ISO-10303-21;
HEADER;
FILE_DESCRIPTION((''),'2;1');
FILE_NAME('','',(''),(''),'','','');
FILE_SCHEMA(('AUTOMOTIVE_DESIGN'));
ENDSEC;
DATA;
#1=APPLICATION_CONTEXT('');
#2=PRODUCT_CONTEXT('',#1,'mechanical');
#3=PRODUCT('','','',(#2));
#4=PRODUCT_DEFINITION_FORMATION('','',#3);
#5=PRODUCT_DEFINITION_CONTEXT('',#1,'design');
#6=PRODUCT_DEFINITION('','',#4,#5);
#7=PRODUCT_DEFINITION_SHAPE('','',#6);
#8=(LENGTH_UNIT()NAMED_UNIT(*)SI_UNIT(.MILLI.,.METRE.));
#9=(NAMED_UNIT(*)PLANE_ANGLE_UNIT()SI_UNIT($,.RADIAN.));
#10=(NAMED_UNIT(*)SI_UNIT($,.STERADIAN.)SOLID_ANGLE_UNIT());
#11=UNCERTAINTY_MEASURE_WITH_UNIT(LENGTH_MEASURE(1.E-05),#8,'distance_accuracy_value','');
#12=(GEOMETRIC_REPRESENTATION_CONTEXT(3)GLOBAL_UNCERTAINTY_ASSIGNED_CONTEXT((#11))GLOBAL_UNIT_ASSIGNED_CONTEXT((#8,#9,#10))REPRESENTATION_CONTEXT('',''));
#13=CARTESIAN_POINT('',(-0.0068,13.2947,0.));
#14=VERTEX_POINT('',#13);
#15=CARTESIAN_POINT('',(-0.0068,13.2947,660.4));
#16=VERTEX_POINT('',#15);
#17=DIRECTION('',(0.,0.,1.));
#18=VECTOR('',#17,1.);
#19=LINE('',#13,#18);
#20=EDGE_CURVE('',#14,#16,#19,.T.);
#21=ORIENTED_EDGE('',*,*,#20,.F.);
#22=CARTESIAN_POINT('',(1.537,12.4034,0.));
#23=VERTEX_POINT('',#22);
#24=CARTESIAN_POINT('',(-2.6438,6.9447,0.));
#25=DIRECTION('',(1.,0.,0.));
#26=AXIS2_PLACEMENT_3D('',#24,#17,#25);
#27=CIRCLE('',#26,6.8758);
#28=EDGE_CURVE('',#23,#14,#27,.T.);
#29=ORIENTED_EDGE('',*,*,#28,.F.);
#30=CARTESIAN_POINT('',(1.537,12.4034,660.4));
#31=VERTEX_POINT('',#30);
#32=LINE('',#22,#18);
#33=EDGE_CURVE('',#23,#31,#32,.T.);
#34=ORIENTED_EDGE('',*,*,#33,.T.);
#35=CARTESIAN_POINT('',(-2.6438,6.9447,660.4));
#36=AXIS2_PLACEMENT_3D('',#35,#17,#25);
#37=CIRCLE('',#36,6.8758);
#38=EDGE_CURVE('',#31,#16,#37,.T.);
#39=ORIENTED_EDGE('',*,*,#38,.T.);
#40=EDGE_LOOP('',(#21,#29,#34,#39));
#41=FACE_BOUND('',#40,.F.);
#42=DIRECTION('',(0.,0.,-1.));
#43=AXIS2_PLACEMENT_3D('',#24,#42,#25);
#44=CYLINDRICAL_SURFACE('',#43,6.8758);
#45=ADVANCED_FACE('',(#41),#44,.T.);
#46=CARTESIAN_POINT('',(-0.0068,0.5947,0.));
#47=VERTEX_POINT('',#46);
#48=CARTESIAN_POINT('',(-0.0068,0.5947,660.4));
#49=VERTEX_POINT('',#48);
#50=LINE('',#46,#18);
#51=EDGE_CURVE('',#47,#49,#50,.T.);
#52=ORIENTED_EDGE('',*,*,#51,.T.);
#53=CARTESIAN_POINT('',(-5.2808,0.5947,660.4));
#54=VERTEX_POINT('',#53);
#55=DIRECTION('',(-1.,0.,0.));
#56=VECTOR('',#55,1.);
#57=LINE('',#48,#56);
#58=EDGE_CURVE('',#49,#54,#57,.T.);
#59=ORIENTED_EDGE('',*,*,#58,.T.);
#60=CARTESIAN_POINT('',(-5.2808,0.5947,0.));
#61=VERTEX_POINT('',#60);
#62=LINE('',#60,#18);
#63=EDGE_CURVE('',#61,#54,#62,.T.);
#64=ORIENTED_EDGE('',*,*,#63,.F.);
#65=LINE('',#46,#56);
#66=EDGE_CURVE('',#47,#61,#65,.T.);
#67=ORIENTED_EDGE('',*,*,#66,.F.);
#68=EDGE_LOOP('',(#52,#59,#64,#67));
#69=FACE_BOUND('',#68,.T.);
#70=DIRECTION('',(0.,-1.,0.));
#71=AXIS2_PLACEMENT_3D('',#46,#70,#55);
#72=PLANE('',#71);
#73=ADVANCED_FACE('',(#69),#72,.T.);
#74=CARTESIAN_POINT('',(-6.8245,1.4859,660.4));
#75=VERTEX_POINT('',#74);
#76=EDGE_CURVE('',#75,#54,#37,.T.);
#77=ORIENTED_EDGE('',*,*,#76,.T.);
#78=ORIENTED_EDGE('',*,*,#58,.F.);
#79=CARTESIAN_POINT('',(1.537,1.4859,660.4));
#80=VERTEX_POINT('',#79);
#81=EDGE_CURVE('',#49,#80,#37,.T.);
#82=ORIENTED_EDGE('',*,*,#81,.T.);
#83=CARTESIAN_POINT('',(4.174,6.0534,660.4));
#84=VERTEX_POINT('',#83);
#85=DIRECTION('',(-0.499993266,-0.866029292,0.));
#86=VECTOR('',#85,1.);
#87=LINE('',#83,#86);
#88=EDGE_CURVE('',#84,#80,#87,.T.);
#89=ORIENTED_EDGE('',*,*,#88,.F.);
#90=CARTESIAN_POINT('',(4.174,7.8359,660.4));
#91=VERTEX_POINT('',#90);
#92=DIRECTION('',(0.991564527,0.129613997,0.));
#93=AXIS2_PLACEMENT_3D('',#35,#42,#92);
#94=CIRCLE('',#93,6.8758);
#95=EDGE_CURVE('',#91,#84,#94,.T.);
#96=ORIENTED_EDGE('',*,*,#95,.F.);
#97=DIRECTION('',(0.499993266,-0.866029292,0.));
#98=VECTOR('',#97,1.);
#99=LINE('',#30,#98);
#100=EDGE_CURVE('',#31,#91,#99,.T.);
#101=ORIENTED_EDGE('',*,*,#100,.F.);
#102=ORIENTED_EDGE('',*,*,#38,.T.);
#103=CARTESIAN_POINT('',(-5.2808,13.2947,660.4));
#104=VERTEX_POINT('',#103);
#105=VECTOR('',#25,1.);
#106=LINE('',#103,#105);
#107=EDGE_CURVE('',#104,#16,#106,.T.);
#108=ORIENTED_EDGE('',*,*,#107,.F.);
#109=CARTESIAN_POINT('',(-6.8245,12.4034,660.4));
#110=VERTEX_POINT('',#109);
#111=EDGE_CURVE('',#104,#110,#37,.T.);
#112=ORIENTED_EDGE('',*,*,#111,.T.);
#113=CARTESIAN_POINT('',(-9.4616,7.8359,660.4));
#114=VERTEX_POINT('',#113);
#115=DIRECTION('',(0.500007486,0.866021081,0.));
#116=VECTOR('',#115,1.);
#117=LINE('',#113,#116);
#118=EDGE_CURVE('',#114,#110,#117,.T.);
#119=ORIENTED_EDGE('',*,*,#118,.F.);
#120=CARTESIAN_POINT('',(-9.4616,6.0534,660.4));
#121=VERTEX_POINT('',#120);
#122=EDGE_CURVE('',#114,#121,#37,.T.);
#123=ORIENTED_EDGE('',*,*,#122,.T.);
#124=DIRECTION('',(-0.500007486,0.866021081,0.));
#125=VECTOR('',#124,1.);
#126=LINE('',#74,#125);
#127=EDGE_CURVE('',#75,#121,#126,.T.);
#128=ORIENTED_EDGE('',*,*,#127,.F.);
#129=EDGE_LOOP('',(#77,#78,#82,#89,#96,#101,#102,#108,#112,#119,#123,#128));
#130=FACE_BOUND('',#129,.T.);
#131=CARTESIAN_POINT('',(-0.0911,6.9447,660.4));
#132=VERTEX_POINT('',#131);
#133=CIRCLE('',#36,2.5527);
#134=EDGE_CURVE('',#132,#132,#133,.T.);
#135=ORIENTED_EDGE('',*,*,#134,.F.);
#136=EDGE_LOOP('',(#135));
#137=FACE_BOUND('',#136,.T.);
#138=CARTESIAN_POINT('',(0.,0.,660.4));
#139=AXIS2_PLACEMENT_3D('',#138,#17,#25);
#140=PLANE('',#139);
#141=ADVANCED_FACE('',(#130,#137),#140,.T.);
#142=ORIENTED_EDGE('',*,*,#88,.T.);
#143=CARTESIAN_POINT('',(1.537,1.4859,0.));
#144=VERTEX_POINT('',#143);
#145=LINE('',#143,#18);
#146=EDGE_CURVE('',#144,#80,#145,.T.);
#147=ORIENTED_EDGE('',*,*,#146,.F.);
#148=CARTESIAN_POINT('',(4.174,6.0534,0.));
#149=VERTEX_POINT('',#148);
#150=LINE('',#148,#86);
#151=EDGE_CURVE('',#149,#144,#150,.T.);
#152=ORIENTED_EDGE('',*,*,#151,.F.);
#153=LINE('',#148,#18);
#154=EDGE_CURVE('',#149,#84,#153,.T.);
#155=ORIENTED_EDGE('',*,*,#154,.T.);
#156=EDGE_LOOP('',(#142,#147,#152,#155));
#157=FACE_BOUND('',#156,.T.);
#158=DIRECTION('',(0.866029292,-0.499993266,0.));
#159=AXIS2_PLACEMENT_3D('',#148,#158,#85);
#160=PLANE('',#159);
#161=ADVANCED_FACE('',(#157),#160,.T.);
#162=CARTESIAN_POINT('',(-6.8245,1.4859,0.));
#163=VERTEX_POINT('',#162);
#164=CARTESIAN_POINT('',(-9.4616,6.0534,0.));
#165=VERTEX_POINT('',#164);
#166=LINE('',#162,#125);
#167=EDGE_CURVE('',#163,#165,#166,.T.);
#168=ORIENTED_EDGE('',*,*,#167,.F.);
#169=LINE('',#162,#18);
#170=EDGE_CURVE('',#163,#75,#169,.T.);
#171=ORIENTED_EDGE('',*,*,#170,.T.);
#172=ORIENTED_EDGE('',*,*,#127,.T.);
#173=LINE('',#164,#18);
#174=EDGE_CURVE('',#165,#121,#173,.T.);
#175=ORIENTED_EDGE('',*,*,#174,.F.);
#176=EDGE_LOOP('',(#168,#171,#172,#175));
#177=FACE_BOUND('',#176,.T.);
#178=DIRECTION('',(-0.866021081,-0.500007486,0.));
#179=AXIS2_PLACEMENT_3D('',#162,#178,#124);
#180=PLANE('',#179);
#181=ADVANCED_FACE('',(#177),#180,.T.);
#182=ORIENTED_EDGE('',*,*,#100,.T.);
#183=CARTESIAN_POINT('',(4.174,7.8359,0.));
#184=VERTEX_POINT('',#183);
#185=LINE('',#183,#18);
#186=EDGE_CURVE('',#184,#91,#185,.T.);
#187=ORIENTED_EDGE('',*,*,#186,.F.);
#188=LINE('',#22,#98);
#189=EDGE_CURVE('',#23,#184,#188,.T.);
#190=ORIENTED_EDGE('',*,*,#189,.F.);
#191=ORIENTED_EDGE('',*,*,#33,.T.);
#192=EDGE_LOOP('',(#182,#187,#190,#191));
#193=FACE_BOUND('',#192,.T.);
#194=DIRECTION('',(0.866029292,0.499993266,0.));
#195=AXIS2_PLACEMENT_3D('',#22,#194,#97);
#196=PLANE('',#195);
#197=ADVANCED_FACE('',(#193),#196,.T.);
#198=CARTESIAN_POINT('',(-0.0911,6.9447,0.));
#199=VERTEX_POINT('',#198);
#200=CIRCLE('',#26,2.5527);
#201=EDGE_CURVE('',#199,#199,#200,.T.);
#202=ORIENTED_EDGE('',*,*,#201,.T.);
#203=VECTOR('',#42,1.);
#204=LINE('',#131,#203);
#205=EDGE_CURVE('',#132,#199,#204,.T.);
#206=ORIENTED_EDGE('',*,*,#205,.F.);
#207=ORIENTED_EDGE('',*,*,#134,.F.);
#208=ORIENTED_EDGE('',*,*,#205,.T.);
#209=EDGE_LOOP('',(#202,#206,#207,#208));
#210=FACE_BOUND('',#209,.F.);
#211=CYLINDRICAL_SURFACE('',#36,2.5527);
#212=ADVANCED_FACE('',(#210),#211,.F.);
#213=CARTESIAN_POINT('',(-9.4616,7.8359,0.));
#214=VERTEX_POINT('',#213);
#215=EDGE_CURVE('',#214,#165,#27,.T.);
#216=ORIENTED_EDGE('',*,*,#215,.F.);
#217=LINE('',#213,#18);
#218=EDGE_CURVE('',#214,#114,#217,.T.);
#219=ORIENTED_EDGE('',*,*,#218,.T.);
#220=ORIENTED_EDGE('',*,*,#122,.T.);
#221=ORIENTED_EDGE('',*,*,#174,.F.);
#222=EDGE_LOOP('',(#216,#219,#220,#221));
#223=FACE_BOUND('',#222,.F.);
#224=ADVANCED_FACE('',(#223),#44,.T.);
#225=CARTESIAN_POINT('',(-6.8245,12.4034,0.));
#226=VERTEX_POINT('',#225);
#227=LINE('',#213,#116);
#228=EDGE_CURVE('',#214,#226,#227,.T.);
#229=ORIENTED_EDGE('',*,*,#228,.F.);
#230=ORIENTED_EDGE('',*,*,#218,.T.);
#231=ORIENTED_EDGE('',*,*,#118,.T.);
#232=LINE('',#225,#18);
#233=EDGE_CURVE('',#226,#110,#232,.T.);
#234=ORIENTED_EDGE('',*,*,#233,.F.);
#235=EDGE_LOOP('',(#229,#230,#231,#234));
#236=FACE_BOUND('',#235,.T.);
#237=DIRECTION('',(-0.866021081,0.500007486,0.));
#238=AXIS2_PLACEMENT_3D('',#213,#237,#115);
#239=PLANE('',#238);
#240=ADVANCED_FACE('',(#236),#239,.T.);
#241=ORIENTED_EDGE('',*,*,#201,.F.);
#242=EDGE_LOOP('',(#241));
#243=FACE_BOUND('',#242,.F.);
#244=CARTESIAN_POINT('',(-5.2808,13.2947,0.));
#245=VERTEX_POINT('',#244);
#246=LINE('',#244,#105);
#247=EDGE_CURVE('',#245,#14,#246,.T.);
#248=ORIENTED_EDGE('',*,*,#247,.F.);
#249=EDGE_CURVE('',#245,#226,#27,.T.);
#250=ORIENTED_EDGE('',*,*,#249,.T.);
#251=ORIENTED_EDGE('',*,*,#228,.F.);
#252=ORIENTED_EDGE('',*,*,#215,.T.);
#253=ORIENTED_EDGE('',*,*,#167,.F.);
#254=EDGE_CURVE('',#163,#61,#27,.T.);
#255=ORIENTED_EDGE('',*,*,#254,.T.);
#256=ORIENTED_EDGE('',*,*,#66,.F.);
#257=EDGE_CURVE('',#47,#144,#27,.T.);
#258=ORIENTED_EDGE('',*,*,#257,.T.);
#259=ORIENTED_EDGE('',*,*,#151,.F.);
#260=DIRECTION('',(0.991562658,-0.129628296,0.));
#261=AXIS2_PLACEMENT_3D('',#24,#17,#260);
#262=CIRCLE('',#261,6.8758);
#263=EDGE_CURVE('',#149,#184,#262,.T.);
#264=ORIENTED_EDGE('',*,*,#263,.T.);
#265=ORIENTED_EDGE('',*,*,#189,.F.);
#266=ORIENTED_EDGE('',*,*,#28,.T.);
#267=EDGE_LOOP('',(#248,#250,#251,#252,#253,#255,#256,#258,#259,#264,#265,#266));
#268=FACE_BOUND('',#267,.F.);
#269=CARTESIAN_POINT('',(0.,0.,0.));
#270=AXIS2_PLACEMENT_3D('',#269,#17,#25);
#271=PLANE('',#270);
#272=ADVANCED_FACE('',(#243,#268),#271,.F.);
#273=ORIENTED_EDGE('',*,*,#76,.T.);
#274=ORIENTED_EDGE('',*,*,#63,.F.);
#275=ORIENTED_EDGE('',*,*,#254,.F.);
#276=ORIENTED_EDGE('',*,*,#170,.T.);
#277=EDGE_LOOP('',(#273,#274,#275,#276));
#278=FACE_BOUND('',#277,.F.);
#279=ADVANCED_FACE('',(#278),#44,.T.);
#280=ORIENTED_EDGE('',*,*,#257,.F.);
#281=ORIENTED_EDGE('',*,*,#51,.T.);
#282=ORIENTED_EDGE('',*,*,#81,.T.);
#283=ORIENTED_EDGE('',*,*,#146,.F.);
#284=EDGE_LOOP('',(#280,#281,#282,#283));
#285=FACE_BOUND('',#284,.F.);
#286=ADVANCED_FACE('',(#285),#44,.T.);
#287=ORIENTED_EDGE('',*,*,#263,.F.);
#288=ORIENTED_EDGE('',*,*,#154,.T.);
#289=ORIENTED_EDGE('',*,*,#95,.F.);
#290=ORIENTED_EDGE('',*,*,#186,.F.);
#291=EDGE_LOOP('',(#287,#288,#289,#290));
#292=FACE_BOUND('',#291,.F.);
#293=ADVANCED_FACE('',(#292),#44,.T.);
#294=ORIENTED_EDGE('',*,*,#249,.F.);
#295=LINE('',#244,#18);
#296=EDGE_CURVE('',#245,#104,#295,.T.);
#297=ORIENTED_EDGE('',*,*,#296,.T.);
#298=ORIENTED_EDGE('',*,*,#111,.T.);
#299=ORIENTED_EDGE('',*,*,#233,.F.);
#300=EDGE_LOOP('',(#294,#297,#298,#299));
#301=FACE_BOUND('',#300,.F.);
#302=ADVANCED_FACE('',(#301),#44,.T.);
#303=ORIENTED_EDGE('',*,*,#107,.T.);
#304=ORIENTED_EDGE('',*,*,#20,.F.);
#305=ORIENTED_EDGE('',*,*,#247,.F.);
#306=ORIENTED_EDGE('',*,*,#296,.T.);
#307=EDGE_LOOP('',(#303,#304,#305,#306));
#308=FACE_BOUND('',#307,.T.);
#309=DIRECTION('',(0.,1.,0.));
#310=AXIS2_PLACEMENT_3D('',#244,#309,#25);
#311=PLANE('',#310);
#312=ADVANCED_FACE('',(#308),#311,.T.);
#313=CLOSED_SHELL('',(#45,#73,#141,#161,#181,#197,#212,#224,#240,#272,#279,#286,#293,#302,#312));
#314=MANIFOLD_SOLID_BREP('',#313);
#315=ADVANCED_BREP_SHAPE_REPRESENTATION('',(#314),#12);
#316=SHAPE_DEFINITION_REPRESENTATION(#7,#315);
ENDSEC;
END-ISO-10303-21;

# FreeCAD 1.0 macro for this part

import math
import FreeCAD as App
import Part
import Sketcher

V = App.Vector
Q = App.Units.Quantity

doc = App.newDocument("Part")
body = doc.addObject("PartDesign::Body", "Body")

# Sketch on XY plane
sketch1 = doc.addObject("Sketcher::SketchObject", "Sketch")
body.addObject(sketch1)
sketch1.AttachmentSupport = (doc.XY_Plane, [""])
sketch1.MapMode = "FlatFace"
sketch1.addGeometry(Part.ArcOfCircle(Part.Circle(V(-2.6438, 6.9447, 0), V(0, 0, 1), 6.8758), math.radians(-7.448114), math.radians(7.447287)), False)
sketch1.addGeometry(Part.LineSegment(V(4.174, 7.8359, 0), V(1.537, 12.4034, 0)), False)
sketch1.addGeometry(Part.ArcOfCircle(Part.Circle(V(-2.6438, 6.9447, 0), V(0, 0, 1), 6.8758), math.radians(52.551618), math.radians(67.448081)), False)
sketch1.addGeometry(Part.LineSegment(V(-0.0068, 13.2947, 0), V(-5.2808, 13.2947, 0)), False)
sketch1.addGeometry(Part.ArcOfCircle(Part.Circle(V(-2.6438, 6.9447, 0), V(0, 0, 1), 6.8758), math.radians(112.551919), math.radians(127.447721)), False)
sketch1.addGeometry(Part.LineSegment(V(-6.8245, 12.4034, 0), V(-9.4616, 7.8359, 0)), False)
sketch1.addGeometry(Part.ArcOfCircle(Part.Circle(V(-2.6438, 6.9447, 0), V(0, 0, 1), 6.8758), math.radians(172.552713), math.radians(187.448114)), False)
sketch1.addGeometry(Part.LineSegment(V(-9.4616, 6.0534, 0), V(-6.8245, 1.4859, 0)), False)
sketch1.addGeometry(Part.ArcOfCircle(Part.Circle(V(-2.6438, 6.9447, 0), V(0, 0, 1), 6.8758), math.radians(-127.447214), math.radians(-112.551919)), False)
sketch1.addGeometry(Part.LineSegment(V(-5.2808, 0.5947, 0), V(-0.0068, 0.5947, 0)), False)
sketch1.addGeometry(Part.ArcOfCircle(Part.Circle(V(-2.6438, 6.9447, 0), V(0, 0, 1), 6.8758), math.radians(-67.448081), math.radians(-52.552124)), False)
sketch1.addGeometry(Part.LineSegment(V(1.537, 1.4859, 0), V(4.174, 6.0534, 0)), False)
sketch1.addConstraint(Sketcher.Constraint("Coincident", 0, 2, 1, 1))
sketch1.addConstraint(Sketcher.Constraint("Coincident", 1, 2, 2, 1))
sketch1.addConstraint(Sketcher.Constraint("Coincident", 2, 2, 3, 1))
sketch1.addConstraint(Sketcher.Constraint("Coincident", 3, 2, 4, 1))
sketch1.addConstraint(Sketcher.Constraint("Coincident", 4, 2, 5, 1))
sketch1.addConstraint(Sketcher.Constraint("Coincident", 5, 2, 6, 1))
sketch1.addConstraint(Sketcher.Constraint("Coincident", 6, 2, 7, 1))
sketch1.addConstraint(Sketcher.Constraint("Coincident", 7, 2, 8, 1))
sketch1.addConstraint(Sketcher.Constraint("Coincident", 8, 2, 9, 1))
sketch1.addConstraint(Sketcher.Constraint("Coincident", 9, 2, 10, 1))
sketch1.addConstraint(Sketcher.Constraint("Coincident", 10, 2, 11, 1))
sketch1.addConstraint(Sketcher.Constraint("Coincident", 11, 2, 0, 1))
sketch1.addConstraint(Sketcher.Constraint("Horizontal", 3))
sketch1.addConstraint(Sketcher.Constraint("Horizontal", 9))
sketch1.addConstraint(Sketcher.Constraint("Coincident", 2, 3, 0, 3))
sketch1.addConstraint(Sketcher.Constraint("Coincident", 4, 3, 0, 3))
sketch1.addConstraint(Sketcher.Constraint("Coincident", 6, 3, 0, 3))
sketch1.addConstraint(Sketcher.Constraint("Coincident", 8, 3, 0, 3))
sketch1.addConstraint(Sketcher.Constraint("Coincident", 10, 3, 0, 3))
sketch1.addConstraint(Sketcher.Constraint("Equal", 0, 2))
sketch1.addConstraint(Sketcher.Constraint("Equal", 2, 4))
sketch1.addConstraint(Sketcher.Constraint("Equal", 4, 6))
sketch1.addConstraint(Sketcher.Constraint("Equal", 6, 8))
sketch1.addConstraint(Sketcher.Constraint("Equal", 8, 10))
sketch1.addConstraint(Sketcher.Constraint("Parallel", 1, 7))
sketch1.addConstraint(Sketcher.Constraint("Parallel", 5, 11))
sketch1.addConstraint(Sketcher.Constraint("Horizontal", 1, 2, 4, 2))
sketch1.addConstraint(Sketcher.Constraint("Horizontal", 0, 2, 5, 2))
sketch1.addConstraint(Sketcher.Constraint("Horizontal", 7, 2, 10, 2))
sketch1.addConstraint(Sketcher.Constraint("Vertical", 5, 2, 6, 2))
sketch1.addConstraint(Sketcher.Constraint("Vertical", 3, 2, 8, 2))
sketch1.addConstraint(Sketcher.Constraint("Radius", 0, Q("0.2707 in")))
sketch1.addConstraint(Sketcher.Constraint("Angle", 1, Q("119.9996 deg")))
sketch1.addConstraint(Sketcher.Constraint("DistanceY", 0, 3, 2, 2, Q("0.25 in")))
sketch1.addConstraint(Sketcher.Constraint("DistanceY", 10, 2, 0, 2, Q("0.25 in")))
sketch1.addConstraint(Sketcher.Constraint("DistanceY", -1, 1, 0, 2, Q("0.3085 in")))
sketch1.addConstraint(Sketcher.Constraint("DistanceX", -1, 1, 1, 2, Q("0.0605 in")))
pad1 = doc.addObject("PartDesign::Pad", "Pad")
body.addObject(pad1)
pad1.Profile = sketch1
pad1.Length = Q("26 in")

# Sketch on XY plane
sketch2 = doc.addObject("Sketcher::SketchObject", "Sketch001")
body.addObject(sketch2)
sketch2.AttachmentSupport = (doc.XY_Plane, [""])
sketch2.MapMode = "FlatFace"
sketch2.AttachmentOffset = App.Placement(V(0, 0, 26 * 25.4), App.Rotation())
sketch2.addGeometry(Part.Circle(V(-2.6438, 6.9447, 0), V(0, 0, 1), 2.5527), False)
sketch2.addConstraint(Sketcher.Constraint("Diameter", 0, Q("0.201 in")))
sketch2.addConstraint(Sketcher.Constraint("DistanceX", 0, 3, -1, 1, Q("2.6438 mm")))
sketch2.addConstraint(Sketcher.Constraint("DistanceY", -1, 1, 0, 3, Q("6.9447 mm")))
pocket1 = doc.addObject("PartDesign::Pocket", "Pocket")
body.addObject(pocket1)
pocket1.Profile = sketch2
pocket1.Length = Q("26 in")

doc.recompute()
